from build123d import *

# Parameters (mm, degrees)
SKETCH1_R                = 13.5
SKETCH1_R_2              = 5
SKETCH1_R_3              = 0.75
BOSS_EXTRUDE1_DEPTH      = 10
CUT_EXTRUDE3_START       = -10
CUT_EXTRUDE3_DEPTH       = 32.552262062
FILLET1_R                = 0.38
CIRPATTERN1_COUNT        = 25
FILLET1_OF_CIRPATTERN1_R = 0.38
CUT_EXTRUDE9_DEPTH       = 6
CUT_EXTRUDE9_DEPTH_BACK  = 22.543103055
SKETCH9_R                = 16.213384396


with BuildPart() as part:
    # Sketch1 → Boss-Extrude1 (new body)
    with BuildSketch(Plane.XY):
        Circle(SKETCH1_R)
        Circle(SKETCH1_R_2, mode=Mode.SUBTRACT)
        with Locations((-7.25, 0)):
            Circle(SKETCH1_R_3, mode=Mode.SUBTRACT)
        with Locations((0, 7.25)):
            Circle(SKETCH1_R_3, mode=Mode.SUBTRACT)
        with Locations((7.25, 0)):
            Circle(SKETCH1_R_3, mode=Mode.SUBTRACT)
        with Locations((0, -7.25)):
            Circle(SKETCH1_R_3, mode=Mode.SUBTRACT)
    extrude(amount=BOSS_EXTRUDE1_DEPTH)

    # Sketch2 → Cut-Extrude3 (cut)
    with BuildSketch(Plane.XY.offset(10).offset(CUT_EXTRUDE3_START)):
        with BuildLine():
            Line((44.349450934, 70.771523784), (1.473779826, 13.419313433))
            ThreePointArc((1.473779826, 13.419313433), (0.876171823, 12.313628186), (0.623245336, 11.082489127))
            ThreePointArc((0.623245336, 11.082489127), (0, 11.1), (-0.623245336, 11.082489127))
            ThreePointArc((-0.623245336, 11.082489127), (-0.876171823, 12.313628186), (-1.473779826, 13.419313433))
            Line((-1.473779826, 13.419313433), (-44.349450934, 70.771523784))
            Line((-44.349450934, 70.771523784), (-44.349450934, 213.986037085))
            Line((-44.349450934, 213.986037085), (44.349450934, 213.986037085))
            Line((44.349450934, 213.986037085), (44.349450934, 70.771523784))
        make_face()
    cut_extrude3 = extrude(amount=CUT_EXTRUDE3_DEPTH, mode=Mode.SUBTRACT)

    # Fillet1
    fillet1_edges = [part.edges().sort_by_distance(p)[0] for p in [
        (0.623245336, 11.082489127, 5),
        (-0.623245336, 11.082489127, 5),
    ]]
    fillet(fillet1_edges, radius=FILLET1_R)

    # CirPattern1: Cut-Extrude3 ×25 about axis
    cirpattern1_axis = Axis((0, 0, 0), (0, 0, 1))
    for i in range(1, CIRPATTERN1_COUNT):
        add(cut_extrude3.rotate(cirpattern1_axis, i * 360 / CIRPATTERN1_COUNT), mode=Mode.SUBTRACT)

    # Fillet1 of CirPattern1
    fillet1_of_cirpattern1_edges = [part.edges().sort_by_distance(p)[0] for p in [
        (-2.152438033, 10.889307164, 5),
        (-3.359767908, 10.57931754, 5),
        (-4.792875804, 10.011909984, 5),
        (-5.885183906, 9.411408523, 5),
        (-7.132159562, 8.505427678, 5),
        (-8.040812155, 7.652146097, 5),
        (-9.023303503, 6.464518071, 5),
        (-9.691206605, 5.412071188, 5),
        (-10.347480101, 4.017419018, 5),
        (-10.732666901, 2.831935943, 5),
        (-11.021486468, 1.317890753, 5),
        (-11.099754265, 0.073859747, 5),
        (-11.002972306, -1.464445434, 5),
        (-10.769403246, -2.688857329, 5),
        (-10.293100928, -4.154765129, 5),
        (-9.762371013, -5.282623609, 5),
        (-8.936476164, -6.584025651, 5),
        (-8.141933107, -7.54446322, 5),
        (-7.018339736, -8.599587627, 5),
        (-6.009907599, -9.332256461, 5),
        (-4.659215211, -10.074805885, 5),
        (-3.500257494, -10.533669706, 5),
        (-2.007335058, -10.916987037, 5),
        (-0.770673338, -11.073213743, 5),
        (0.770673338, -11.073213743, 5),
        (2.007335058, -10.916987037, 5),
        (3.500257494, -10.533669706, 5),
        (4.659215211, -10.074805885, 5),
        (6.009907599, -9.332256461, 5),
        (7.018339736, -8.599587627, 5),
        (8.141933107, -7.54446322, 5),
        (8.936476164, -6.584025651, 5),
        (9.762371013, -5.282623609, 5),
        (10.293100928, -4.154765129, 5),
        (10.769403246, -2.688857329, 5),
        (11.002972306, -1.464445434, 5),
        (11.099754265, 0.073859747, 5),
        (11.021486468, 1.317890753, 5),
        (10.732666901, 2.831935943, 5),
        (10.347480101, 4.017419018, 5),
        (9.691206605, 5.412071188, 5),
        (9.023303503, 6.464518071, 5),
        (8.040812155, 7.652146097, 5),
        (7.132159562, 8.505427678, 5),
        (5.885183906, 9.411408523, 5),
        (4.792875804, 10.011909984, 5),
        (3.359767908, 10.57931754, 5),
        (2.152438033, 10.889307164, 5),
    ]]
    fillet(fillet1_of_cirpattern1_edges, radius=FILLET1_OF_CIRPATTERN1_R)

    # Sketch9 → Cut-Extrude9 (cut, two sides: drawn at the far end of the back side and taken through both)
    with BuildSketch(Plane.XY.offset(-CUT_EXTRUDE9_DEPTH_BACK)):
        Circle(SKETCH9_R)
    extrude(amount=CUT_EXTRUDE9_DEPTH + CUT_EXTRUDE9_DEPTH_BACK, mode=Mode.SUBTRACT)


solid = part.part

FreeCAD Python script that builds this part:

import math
import FreeCAD as App
import Part
import Sketcher
from FreeCAD import Vector


def edges_at(feature, points):
    """Names of the edges that pass closest to the given points."""
    edges = feature.Shape.Edges
    near = lambda p: min(range(len(edges)), key=lambda i: edges[i].distToShape(Part.Vertex(*p))[0])
    return sorted({f"Edge{near(p) + 1}" for p in points})

doc = App.newDocument("Part")
body = doc.addObject("PartDesign::Body", "Body")

# Sketch on XY plane
sketch1 = body.newObject("Sketcher::SketchObject", "Sketch")
sketch1.AttachmentSupport = (doc.getObject("XY_Plane"), [""])
sketch1.MapMode = "FlatFace"
sketch1.addGeometry([
    Part.Circle(Vector(0, 0, 0), Vector(0, 0, 1), 13.5),  # 0
    Part.Circle(Vector(0, -7.2, 0), Vector(0, 0, 1), 0.8),  # 1
    Part.Circle(Vector(-7.2, 0, 0), Vector(0, 0, 1), 0.8),  # 2
    Part.Circle(Vector(0, 0, 0), Vector(0, 0, 1), 5),  # 3
    Part.Circle(Vector(7.2, 0, 0), Vector(0, 0, 1), 0.8),  # 4
    Part.Circle(Vector(0, 7.2, 0), Vector(0, 0, 1), 0.8),  # 5
], False)
sketch1.addConstraint([
    Sketcher.Constraint("Coincident", 0, 3, -1, 1),
    Sketcher.Constraint("Coincident", 3, 3, -1, 1),
    Sketcher.Constraint("Equal", 1, 2),
    Sketcher.Constraint("Equal", 2, 4),
    Sketcher.Constraint("Equal", 4, 5),
    Sketcher.Constraint("Symmetric", 2, 3, 4, 3, -1, 1),
    Sketcher.Constraint("Symmetric", 1, 3, 5, 3, -1, 1),
    Sketcher.Constraint("PointOnObject", 1, 3, -2),
    Sketcher.Constraint("PointOnObject", 2, 3, -1),
    Sketcher.Constraint("Diameter", 0, 27.0),
    Sketcher.Constraint("Diameter", 3, 10.0),
    Sketcher.Constraint("Diameter", 1, 1.5),
    Sketcher.Constraint("DistanceX", 2, 3, 4, 3, 14.5),
    Sketcher.Constraint("DistanceY", 1, 3, 5, 3, 14.5),
])
pad1 = body.newObject("PartDesign::Pad", "Pad")
pad1.Profile = sketch1
pad1.Length = 10

# Sketch on XY plane
sketch2 = body.newObject("Sketcher::SketchObject", "Sketch001")
sketch2.AttachmentSupport = (doc.getObject("XY_Plane"), [""])
sketch2.MapMode = "FlatFace"
sketch2.addGeometry([
    Part.LineSegment(Vector(1.47378, 13.419313, 0), Vector(44.349451, 70.771524, 0)),  # 0
    Part.LineSegment(Vector(44.349451, 70.771524, 0), Vector(44.349451, 213.986037, 0)),  # 1
    Part.LineSegment(Vector(44.349451, 213.986037, 0), Vector(-44.349451, 213.986037, 0)),  # 2
    Part.LineSegment(Vector(-44.349451, 213.986037, 0), Vector(-44.349451, 70.771524, 0)),  # 3
    Part.LineSegment(Vector(-44.349451, 70.771524, 0), Vector(-1.47378, 13.419313, 0)),  # 4
    Part.ArcOfCircle(Part.Circle(Vector(-4.923062, 10.840681, 0), Vector(0, 0, 1), 4.306611), math.radians(3.218749), math.radians(36.781251)),  # 5
    Part.ArcOfCircle(Part.Circle(Vector(0, 0, 0), Vector(0, 0, 1), 11.1), math.radians(86.781251), math.radians(93.218749)),  # 6
    Part.ArcOfCircle(Part.Circle(Vector(4.923062, 10.840681, 0), Vector(0, 0, 1), 4.306611), math.radians(143.218749), math.radians(176.781251)),  # 7
], False)
sketch2.addConstraint([
    Sketcher.Constraint("Coincident", 0, 2, 1, 1),
    Sketcher.Constraint("Coincident", 1, 2, 2, 1),
    Sketcher.Constraint("Coincident", 2, 2, 3, 1),
    Sketcher.Constraint("Coincident", 3, 2, 4, 1),
    Sketcher.Constraint("Coincident", 4, 2, 5, 2),
    Sketcher.Constraint("Coincident", 5, 1, 6, 2),
    Sketcher.Constraint("Coincident", 6, 1, 7, 2),
    Sketcher.Constraint("Coincident", 7, 1, 0, 1),
    Sketcher.Constraint("Vertical", 1),
    Sketcher.Constraint("Horizontal", 2),
    Sketcher.Constraint("Vertical", 3),
    Sketcher.Constraint("Coincident", 6, 3, -1, 1),
    Sketcher.Constraint("Radius", 6, 11.1),
    Sketcher.Constraint("Radius", 5, 4.306611),
    Sketcher.Constraint("Radius", 7, 4.306611),
    Sketcher.Constraint("DistanceX", 2, 2, 2, 1, 88.698902),
    Sketcher.Constraint("DistanceY", 1, 1, 1, 2, 143.214513),
    Sketcher.Constraint("DistanceY", 3, 2, 3, 1, 143.214513),
    Sketcher.Constraint("DistanceY", -1, 1, 5, 3, 10.840681),
    Sketcher.Constraint("DistanceY", -1, 1, 7, 3, 10.840681),
    Sketcher.Constraint("DistanceX", -1, 1, 0, 2, 44.349451),
    Sketcher.Constraint("DistanceX", 4, 2, -1, 1, 1.47378),
    Sketcher.Constraint("DistanceY", -1, 1, 5, 1, 11.082489),
    Sketcher.Constraint("DistanceY", -1, 1, 6, 1, 11.082489),
    Sketcher.Constraint("DistanceX", -1, 1, 7, 1, 1.47378),
    Sketcher.Constraint("DistanceY", 4, 2, 3, 2, 57.35221),
])
pocket1 = body.newObject("PartDesign::Pocket", "Pocket")
pocket1.Profile = sketch2
pocket1.Length = 32.552262
pocket1.Reversed = True
doc.recompute()

fillet = body.newObject("PartDesign::Fillet", "Fillet")
fillet.Base = (pocket1, edges_at(pocket1, [(0.623, 11.082, 5), (-0.623, 11.082, 5)]))
fillet.Radius = 0.38
doc.recompute()

polarpattern = body.newObject("PartDesign::PolarPattern", "PolarPattern")
polarpattern.Originals = [pocket1]
polarpattern.Axis = (doc.getObject("Z_Axis"), [""])
polarpattern.Angle = 360
polarpattern.Occurrences = 25
body.Tip = polarpattern
doc.recompute()

fillet2 = body.newObject("PartDesign::Fillet", "Fillet001")
fillet2.Base = (polarpattern, edges_at(polarpattern, [
    (-2.152, 10.889, 5),
    (-3.36, 10.579, 5),
    (-4.793, 10.012, 5),
    (-5.885, 9.411, 5),
    (-7.132, 8.505, 5),
    (-8.041, 7.652, 5),
    (-9.023, 6.465, 5),
    (-9.691, 5.412, 5),
    (-10.347, 4.017, 5),
    (-10.733, 2.832, 5),
    (-11.021, 1.318, 5),
    (-11.1, 0.074, 5),
    (-11.003, -1.464, 5),
    (-10.769, -2.689, 5),
    (-10.293, -4.155, 5),
    (-9.762, -5.283, 5),
    (-8.936, -6.584, 5),
    (-8.142, -7.544, 5),
    (-7.018, -8.6, 5),
    (-6.01, -9.332, 5),
    (-4.659, -10.075, 5),
    (-3.5, -10.534, 5),
    (-2.007, -10.917, 5),
    (-0.771, -11.073, 5),
    (0.771, -11.073, 5),
    (2.007, -10.917, 5),
    (3.5, -10.534, 5),
    (4.659, -10.075, 5),
    (6.01, -9.332, 5),
    (7.018, -8.6, 5),
    (8.142, -7.544, 5),
    (8.936, -6.584, 5),
    (9.762, -5.283, 5),
    (10.293, -4.155, 5),
    (10.769, -2.689, 5),
    (11.003, -1.464, 5),
    (11.1, 0.074, 5),
    (11.021, 1.318, 5),
    (10.733, 2.832, 5),
    (10.347, 4.017, 5),
    (9.691, 5.412, 5),
    (9.023, 6.465, 5),
    (8.041, 7.652, 5),
    (7.132, 8.505, 5),
    (5.885, 9.411, 5),
    (4.793, 10.012, 5),
    (3.36, 10.579, 5),
    (2.152, 10.889, 5),
]))
fillet2.Radius = 0.38

# Sketch on XY plane
sketch3 = body.newObject("Sketcher::SketchObject", "Sketch002")
sketch3.AttachmentSupport = (doc.getObject("XY_Plane"), [""])
sketch3.MapMode = "FlatFace"
sketch3.addGeometry(Part.Circle(Vector(0, 0, 0), Vector(0, 0, 1), 16), False)
sketch3.addConstraint([
    Sketcher.Constraint("Coincident", 0, 3, -1, 1),
    Sketcher.Constraint("Diameter", 0, 32.426769),
])
pocket2 = body.newObject("PartDesign::Pocket", "Pocket001")
pocket2.Profile = sketch3
pocket2.Type = "TwoLengths"
pocket2.Length = 6
pocket2.Length2 = 22.543103
pocket2.Reversed = True

doc.recompute()
